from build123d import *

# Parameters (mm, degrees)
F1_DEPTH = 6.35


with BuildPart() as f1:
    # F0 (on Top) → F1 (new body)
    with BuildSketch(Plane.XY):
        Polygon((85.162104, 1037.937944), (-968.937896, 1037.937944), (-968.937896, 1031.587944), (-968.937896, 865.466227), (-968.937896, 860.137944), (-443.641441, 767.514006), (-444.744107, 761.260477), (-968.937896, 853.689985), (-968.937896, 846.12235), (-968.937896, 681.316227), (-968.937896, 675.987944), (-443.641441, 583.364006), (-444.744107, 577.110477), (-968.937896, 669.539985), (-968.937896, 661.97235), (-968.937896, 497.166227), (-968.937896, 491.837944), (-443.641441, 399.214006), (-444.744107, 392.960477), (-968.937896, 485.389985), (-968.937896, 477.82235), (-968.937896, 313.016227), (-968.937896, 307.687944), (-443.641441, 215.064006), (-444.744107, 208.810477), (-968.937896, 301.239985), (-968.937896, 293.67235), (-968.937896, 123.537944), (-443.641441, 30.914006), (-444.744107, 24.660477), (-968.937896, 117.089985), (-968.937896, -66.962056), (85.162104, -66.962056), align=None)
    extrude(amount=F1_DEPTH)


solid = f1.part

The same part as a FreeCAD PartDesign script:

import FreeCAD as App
import Part
import Sketcher

V = App.Vector
Q = App.Units.Quantity


def add_polygon(sketch, points):
    """Adds a closed chain of lines whose ends are joined by coincident constraints."""
    first, n = sketch.GeometryCount, len(points)
    for a, b in zip(points, points[1:] + points[:1]):
        sketch.addGeometry(Part.LineSegment(App.Vector(*a, 0), App.Vector(*b, 0)), False)
    for i in range(n):
        sketch.addConstraint(Sketcher.Constraint("Coincident", first + i, 2, first + (i + 1) % n, 1))

doc = App.newDocument("Part")
body = doc.addObject("PartDesign::Body", "Body")

sketch1 = doc.addObject("Sketcher::SketchObject", "Sketch")
body.addObject(sketch1)
sketch1.AttachmentSupport = (doc.XY_Plane, [""])
sketch1.MapMode = "FlatFace"
add_polygon(sketch1, [(85.162104, 1037.937944), (-968.937896, 1037.937944), (-968.937896, 860.137944), (-443.641441, 767.514006), (-444.744107, 761.260477), (-968.937896, 853.689985), (-968.937896, 675.987944), (-443.641441, 583.364006), (-444.744107, 577.110477), (-968.937896, 669.539985), (-968.937896, 491.837944), (-443.641441, 399.214006), (-444.744107, 392.960477), (-968.937896, 485.389985), (-968.937896, 307.687944), (-443.641441, 215.064006), (-444.744107, 208.810477), (-968.937896, 301.239985), (-968.937896, 123.537944), (-443.641441, 30.914006), (-444.744107, 24.660477), (-968.937896, 117.089985), (-968.937896, -66.962056), (85.162104, -66.962056)])
sketch1.addConstraint([
    Sketcher.Constraint("Horizontal", 0),
    Sketcher.Constraint("Vertical", 1),
    Sketcher.Constraint("Vertical", 5),
    Sketcher.Constraint("Vertical", 9),
    Sketcher.Constraint("Vertical", 13),
    Sketcher.Constraint("Vertical", 17),
    Sketcher.Constraint("Vertical", 21),
    Sketcher.Constraint("Horizontal", 22),
    Sketcher.Constraint("Vertical", 23),
    Sketcher.Constraint("Perpendicular", 2, 3),
    Sketcher.Constraint("Perpendicular", 3, 4),
    Sketcher.Constraint("Parallel", 4, 6),
    Sketcher.Constraint("Perpendicular", 6, 7),
    Sketcher.Constraint("Perpendicular", 7, 8),
    Sketcher.Constraint("Parallel", 8, 10),
    Sketcher.Constraint("Perpendicular", 10, 11),
    Sketcher.Constraint("Perpendicular", 11, 12),
    Sketcher.Constraint("Parallel", 12, 14),
    Sketcher.Constraint("Perpendicular", 14, 15),
    Sketcher.Constraint("Perpendicular", 15, 16),
    Sketcher.Constraint("Parallel", 16, 18),
    Sketcher.Constraint("Perpendicular", 18, 19),
    Sketcher.Constraint("Perpendicular", 19, 20),
    Sketcher.Constraint("Vertical", 1, 2, 4, 2),
    Sketcher.Constraint("Vertical", 2, 2, 6, 2),
    Sketcher.Constraint("Vertical", 3, 2, 7, 2),
    Sketcher.Constraint("Vertical", 5, 2, 8, 2),
    Sketcher.Constraint("Vertical", 6, 2, 10, 2),
    Sketcher.Constraint("Vertical", 7, 2, 11, 2),
    Sketcher.Constraint("Vertical", 9, 2, 12, 2),
    Sketcher.Constraint("Vertical", 10, 2, 14, 2),
    Sketcher.Constraint("Vertical", 11, 2, 15, 2),
    Sketcher.Constraint("Vertical", 13, 2, 16, 2),
    Sketcher.Constraint("Vertical", 14, 2, 18, 2),
    Sketcher.Constraint("Vertical", 15, 2, 19, 2),
    Sketcher.Constraint("Vertical", 17, 2, 20, 2),
    Sketcher.Constraint("Equal", 5, 9),
    Sketcher.Constraint("Equal", 9, 13),
    Sketcher.Constraint("Equal", 13, 17),
    Sketcher.Constraint("DistanceY", 1, 2, 1, 1, Q("7 in")),
    Sketcher.Constraint("Distance", 2, Q("21 in")),
    Sketcher.Constraint("DistanceX", 0, 2, 0, 1, Q("41.5 in")),
    Sketcher.Constraint("DistanceY", 23, 1, 23, 2, Q("43.5 in")),
    Sketcher.Constraint("Angle", 2, Q("-10 deg")),
    Sketcher.Constraint("DistanceY", 9, 2, 1, 2, Q("14.5 in")),
    Sketcher.Constraint("Distance", 3, Q("0.25 in")),
    Sketcher.Constraint("DistanceX", 2, 2, -1, 1, 443.641441),
    Sketcher.Constraint("DistanceY", -1, 1, 0, 2, 1037.937944),
])
pad1 = doc.addObject("PartDesign::Pad", "Pad")
body.addObject(pad1)
pad1.Profile = sketch1
pad1.Length = Q("0.25 in")

doc.recompute()
